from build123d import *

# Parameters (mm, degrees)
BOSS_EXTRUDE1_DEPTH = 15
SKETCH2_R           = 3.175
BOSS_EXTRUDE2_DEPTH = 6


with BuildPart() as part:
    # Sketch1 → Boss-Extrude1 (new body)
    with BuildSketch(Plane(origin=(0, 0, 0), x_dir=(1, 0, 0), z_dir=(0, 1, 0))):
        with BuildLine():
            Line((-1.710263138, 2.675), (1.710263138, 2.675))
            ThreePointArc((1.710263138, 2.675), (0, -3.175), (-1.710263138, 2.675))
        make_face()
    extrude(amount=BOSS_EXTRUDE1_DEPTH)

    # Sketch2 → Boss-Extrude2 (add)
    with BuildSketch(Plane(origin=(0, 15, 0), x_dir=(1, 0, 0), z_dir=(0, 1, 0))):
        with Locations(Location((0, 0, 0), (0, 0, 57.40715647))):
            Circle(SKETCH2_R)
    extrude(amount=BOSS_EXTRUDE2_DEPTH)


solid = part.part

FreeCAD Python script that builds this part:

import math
import FreeCAD as App
import Part
import Sketcher

V = App.Vector

doc = App.newDocument("Part")
body = doc.addObject("PartDesign::Body", "Body")

# Sketch on XZ plane
sketch1 = body.newObject("Sketcher::SketchObject", "Sketch")
sketch1.AttachmentSupport = (doc.getObject("XZ_Plane"), [""])
sketch1.MapMode = "FlatFace"
sketch1.addGeometry(Part.LineSegment(V(1.7, -2.7, 0), V(-1.7, -2.7, 0)), False)
sketch1.addGeometry(Part.ArcOfCircle(Part.Circle(V(0, 0, 0), V(0, 0, 1), 3.2), math.radians(-57), math.radians(237)), False)
sketch1.addConstraint(Sketcher.Constraint("Coincident", 0, 1, 1, 1))
sketch1.addConstraint(Sketcher.Constraint("Coincident", 1, 2, 0, 2))
sketch1.addConstraint(Sketcher.Constraint("Horizontal", 0))
sketch1.addConstraint(Sketcher.Constraint("Coincident", 1, 3, -1, 1))
sketch1.addConstraint(Sketcher.Constraint("Radius", 1, 3.175))
sketch1.addConstraint(Sketcher.Constraint("DistanceY", 0, 1, -1, 1, 2.675))
pad1 = body.newObject("PartDesign::Pad", "Pad")
pad1.Profile = sketch1
pad1.Length = 15
pad1.Reversed = True

# Sketch on XZ plane
sketch2 = body.newObject("Sketcher::SketchObject", "Sketch001")
sketch2.AttachmentSupport = (doc.getObject("XZ_Plane"), [""])
sketch2.MapMode = "FlatFace"
sketch2.AttachmentOffset = App.Placement(V(0, 0, -15), App.Rotation())
sketch2.addGeometry(Part.Circle(V(0, 0, 0), V(0, 0, 1), 3.2), False)
sketch2.addConstraint(Sketcher.Constraint("Coincident", 0, 3, -1, 1))
sketch2.addConstraint(Sketcher.Constraint("Diameter", 0, 6.35))
pad2 = body.newObject("PartDesign::Pad", "Pad001")
pad2.Profile = sketch2
pad2.Length = 6
pad2.Reversed = True

doc.recompute()
